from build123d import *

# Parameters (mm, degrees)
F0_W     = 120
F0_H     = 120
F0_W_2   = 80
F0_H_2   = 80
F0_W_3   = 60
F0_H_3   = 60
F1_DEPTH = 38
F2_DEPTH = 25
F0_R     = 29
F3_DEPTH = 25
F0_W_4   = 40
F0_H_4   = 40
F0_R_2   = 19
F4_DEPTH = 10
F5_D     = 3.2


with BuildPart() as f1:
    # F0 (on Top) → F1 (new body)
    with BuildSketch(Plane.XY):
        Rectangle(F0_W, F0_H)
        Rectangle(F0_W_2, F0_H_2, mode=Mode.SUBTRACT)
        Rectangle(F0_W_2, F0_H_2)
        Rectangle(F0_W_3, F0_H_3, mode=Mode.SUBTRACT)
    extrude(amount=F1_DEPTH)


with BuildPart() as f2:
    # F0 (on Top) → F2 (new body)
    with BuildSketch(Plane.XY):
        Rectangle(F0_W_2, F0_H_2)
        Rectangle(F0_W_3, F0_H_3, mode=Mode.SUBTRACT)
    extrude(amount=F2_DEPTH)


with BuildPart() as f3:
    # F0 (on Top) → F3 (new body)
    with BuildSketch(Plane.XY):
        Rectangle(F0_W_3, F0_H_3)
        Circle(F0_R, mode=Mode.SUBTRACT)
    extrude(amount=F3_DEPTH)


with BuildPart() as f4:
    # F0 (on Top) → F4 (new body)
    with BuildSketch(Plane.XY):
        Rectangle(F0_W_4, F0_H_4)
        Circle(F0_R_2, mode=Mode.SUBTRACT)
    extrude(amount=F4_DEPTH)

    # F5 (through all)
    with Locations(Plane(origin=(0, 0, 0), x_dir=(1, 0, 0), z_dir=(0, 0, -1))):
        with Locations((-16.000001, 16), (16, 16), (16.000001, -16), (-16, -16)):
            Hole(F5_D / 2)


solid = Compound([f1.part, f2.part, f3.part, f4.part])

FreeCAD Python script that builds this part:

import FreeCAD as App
import Part
import Sketcher

V = App.Vector

doc = App.newDocument("Part")
body = doc.addObject("PartDesign::Body", "Body")

# Sketch on XY plane
sketch1 = body.newObject("Sketcher::SketchObject", "Sketch")
sketch1.AttachmentSupport = (doc.getObject("XY_Plane"), [""])
sketch1.MapMode = "FlatFace"
sketch1.addGeometry([
    Part.LineSegment(V(-60, 60, 0), V(-60, -60, 0)),  # 0
    Part.LineSegment(V(-60, -60, 0), V(60, -60, 0)),  # 1
    Part.LineSegment(V(60, -60, 0), V(60, 60, 0)),  # 2
    Part.LineSegment(V(60, 60, 0), V(-60, 60, 0)),  # 3
    Part.LineSegment(V(30, -30, 0), V(-30, -30, 0)),  # 4
    Part.LineSegment(V(-30, -30, 0), V(-30, 30, 0)),  # 5
    Part.LineSegment(V(-30, 30, 0), V(30, 30, 0)),  # 6
    Part.LineSegment(V(30, 30, 0), V(30, -30, 0)),  # 7
], False)
sketch1.addConstraint([
    Sketcher.Constraint("Coincident", 0, 2, 1, 1),
    Sketcher.Constraint("Coincident", 1, 2, 2, 1),
    Sketcher.Constraint("Coincident", 2, 2, 3, 1),
    Sketcher.Constraint("Coincident", 3, 2, 0, 1),
    Sketcher.Constraint("Coincident", 4, 2, 5, 1),
    Sketcher.Constraint("Coincident", 5, 2, 6, 1),
    Sketcher.Constraint("Coincident", 6, 2, 7, 1),
    Sketcher.Constraint("Coincident", 7, 2, 4, 1),
    Sketcher.Constraint("Vertical", 0),
    Sketcher.Constraint("Horizontal", 1),
    Sketcher.Constraint("Vertical", 2),
    Sketcher.Constraint("Horizontal", 3),
    Sketcher.Constraint("Horizontal", 4),
    Sketcher.Constraint("Vertical", 5),
    Sketcher.Constraint("Horizontal", 6),
    Sketcher.Constraint("Vertical", 7),
    Sketcher.Constraint("Symmetric", 0, 2, 2, 2, -1, 1),
    Sketcher.Constraint("Symmetric", 4, 2, 6, 2, -1, 1),
    Sketcher.Constraint("Equal", 3, 0),
    Sketcher.Constraint("Equal", 6, 5),
    Sketcher.Constraint("DistanceX", 1, 1, 1, 2, 120.0),
    Sketcher.Constraint("DistanceX", 4, 2, 4, 1, 60.0),
])
pad1 = body.newObject("PartDesign::Pad", "Pad")
pad1.Profile = sketch1
pad1.Length = 38
body2 = doc.addObject("PartDesign::Body", "Body001")

# Sketch on XY plane
sketch2 = body2.newObject("Sketcher::SketchObject", "Sketch001")
sketch2.AttachmentSupport = (doc.getObject("XY_Plane001"), [""])
sketch2.MapMode = "FlatFace"
sketch2.addGeometry([
    Part.LineSegment(V(-40, 40, 0), V(-40, -40, 0)),  # 0
    Part.LineSegment(V(-40, -40, 0), V(40, -40, 0)),  # 1
    Part.LineSegment(V(40, -40, 0), V(40, 40, 0)),  # 2
    Part.LineSegment(V(40, 40, 0), V(-40, 40, 0)),  # 3
    Part.LineSegment(V(30, -30, 0), V(-30, -30, 0)),  # 4
    Part.LineSegment(V(-30, -30, 0), V(-30, 30, 0)),  # 5
    Part.LineSegment(V(-30, 30, 0), V(30, 30, 0)),  # 6
    Part.LineSegment(V(30, 30, 0), V(30, -30, 0)),  # 7
], False)
sketch2.addConstraint([
    Sketcher.Constraint("Coincident", 0, 2, 1, 1),
    Sketcher.Constraint("Coincident", 1, 2, 2, 1),
    Sketcher.Constraint("Coincident", 2, 2, 3, 1),
    Sketcher.Constraint("Coincident", 3, 2, 0, 1),
    Sketcher.Constraint("Coincident", 4, 2, 5, 1),
    Sketcher.Constraint("Coincident", 5, 2, 6, 1),
    Sketcher.Constraint("Coincident", 6, 2, 7, 1),
    Sketcher.Constraint("Coincident", 7, 2, 4, 1),
    Sketcher.Constraint("Vertical", 0),
    Sketcher.Constraint("Horizontal", 1),
    Sketcher.Constraint("Vertical", 2),
    Sketcher.Constraint("Horizontal", 3),
    Sketcher.Constraint("Horizontal", 4),
    Sketcher.Constraint("Vertical", 5),
    Sketcher.Constraint("Horizontal", 6),
    Sketcher.Constraint("Vertical", 7),
    Sketcher.Constraint("Symmetric", 0, 2, 2, 2, -1, 1),
    Sketcher.Constraint("Symmetric", 4, 2, 6, 2, -1, 1),
    Sketcher.Constraint("Equal", 3, 0),
    Sketcher.Constraint("Equal", 6, 5),
    Sketcher.Constraint("DistanceX", 1, 1, 1, 2, 80.0),
    Sketcher.Constraint("DistanceX", 4, 2, 4, 1, 60.0),
])
pad2 = body2.newObject("PartDesign::Pad", "Pad001")
pad2.Profile = sketch2
pad2.Length = 25
body3 = doc.addObject("PartDesign::Body", "Body002")

# Sketch on XY plane
sketch3 = body3.newObject("Sketcher::SketchObject", "Sketch002")
sketch3.AttachmentSupport = (doc.getObject("XY_Plane002"), [""])
sketch3.MapMode = "FlatFace"
sketch3.addGeometry([
    Part.LineSegment(V(-30, 30, 0), V(-30, -30, 0)),  # 0
    Part.LineSegment(V(-30, -30, 0), V(30, -30, 0)),  # 1
    Part.LineSegment(V(30, -30, 0), V(30, 30, 0)),  # 2
    Part.LineSegment(V(30, 30, 0), V(-30, 30, 0)),  # 3
    Part.Circle(V(0, 0, 0), V(0, 0, 1), 29),  # 4
], False)
sketch3.addConstraint([
    Sketcher.Constraint("Coincident", 0, 2, 1, 1),
    Sketcher.Constraint("Coincident", 1, 2, 2, 1),
    Sketcher.Constraint("Coincident", 2, 2, 3, 1),
    Sketcher.Constraint("Coincident", 3, 2, 0, 1),
    Sketcher.Constraint("Vertical", 0),
    Sketcher.Constraint("Horizontal", 1),
    Sketcher.Constraint("Vertical", 2),
    Sketcher.Constraint("Horizontal", 3),
    Sketcher.Constraint("Coincident", 4, 3, -1, 1),
    Sketcher.Constraint("Symmetric", 0, 2, 2, 2, -1, 1),
    Sketcher.Constraint("Equal", 3, 0),
    Sketcher.Constraint("Diameter", 4, 58.0),
    Sketcher.Constraint("DistanceX", 1, 1, 1, 2, 60.0),
])
pad3 = body3.newObject("PartDesign::Pad", "Pad002")
pad3.Profile = sketch3
pad3.Length = 25
body4 = doc.addObject("PartDesign::Body", "Body003")

# Sketch on XY plane
sketch4 = body4.newObject("Sketcher::SketchObject", "Sketch003")
sketch4.AttachmentSupport = (doc.getObject("XY_Plane003"), [""])
sketch4.MapMode = "FlatFace"
sketch4.addGeometry([
    Part.LineSegment(V(-20, 20, 0), V(-20, -20, 0)),  # 0
    Part.LineSegment(V(-20, -20, 0), V(20, -20, 0)),  # 1
    Part.LineSegment(V(20, -20, 0), V(20, 20, 0)),  # 2
    Part.LineSegment(V(20, 20, 0), V(-20, 20, 0)),  # 3
    Part.Circle(V(0, 0, 0), V(0, 0, 1), 19),  # 4
], False)
sketch4.addConstraint([
    Sketcher.Constraint("Coincident", 0, 2, 1, 1),
    Sketcher.Constraint("Coincident", 1, 2, 2, 1),
    Sketcher.Constraint("Coincident", 2, 2, 3, 1),
    Sketcher.Constraint("Coincident", 3, 2, 0, 1),
    Sketcher.Constraint("Vertical", 0),
    Sketcher.Constraint("Horizontal", 1),
    Sketcher.Constraint("Vertical", 2),
    Sketcher.Constraint("Horizontal", 3),
    Sketcher.Constraint("Coincident", 4, 3, -1, 1),
    Sketcher.Constraint("Symmetric", 0, 2, 2, 2, -1, 1),
    Sketcher.Constraint("Equal", 3, 0),
    Sketcher.Constraint("Diameter", 4, 38.0),
    Sketcher.Constraint("DistanceX", 1, 1, 1, 2, 40.0),
])
pad4 = body4.newObject("PartDesign::Pad", "Pad003")
pad4.Profile = sketch4
pad4.Length = 10

# Sketch on XY plane
sketch5 = body4.newObject("Sketcher::SketchObject", "Sketch004")
sketch5.AttachmentSupport = (doc.getObject("XY_Plane003"), [""])
sketch5.MapMode = "FlatFace"
sketch5.addGeometry([
    Part.Circle(V(-16, -16, 0), V(0, 0, 1), 1.6),
    Part.Circle(V(16, -16, 0), V(0, 0, 1), 1.6),
    Part.Circle(V(16, 16, 0), V(0, 0, 1), 1.6),
    Part.Circle(V(-16, 16, 0), V(0, 0, 1), 1.6),
], False)
sketch5.addConstraint([
    Sketcher.Constraint("Equal", 0, 1),
    Sketcher.Constraint("Equal", 1, 2),
    Sketcher.Constraint("Equal", 2, 3),
    Sketcher.Constraint("Symmetric", 0, 3, 2, 3, -1, 1),
    Sketcher.Constraint("Symmetric", 1, 3, 3, 3, -1, 1),
    Sketcher.Constraint("Symmetric", 0, 3, 1, 3, -2),
    Sketcher.Constraint("Diameter", 0, 3.2),
    Sketcher.Constraint("DistanceX", 0, 3, -1, 1, 16.000001),
    Sketcher.Constraint("DistanceY", 0, 3, -1, 1, 16.0),
])
doc.recompute()
hole = body4.newObject("PartDesign::Hole", "Hole")
hole.Profile = sketch5
hole.ThreadType = "None"
hole.Diameter = 3.2
hole.DepthType = "ThroughAll"
hole.Reversed = True

doc.recompute()
